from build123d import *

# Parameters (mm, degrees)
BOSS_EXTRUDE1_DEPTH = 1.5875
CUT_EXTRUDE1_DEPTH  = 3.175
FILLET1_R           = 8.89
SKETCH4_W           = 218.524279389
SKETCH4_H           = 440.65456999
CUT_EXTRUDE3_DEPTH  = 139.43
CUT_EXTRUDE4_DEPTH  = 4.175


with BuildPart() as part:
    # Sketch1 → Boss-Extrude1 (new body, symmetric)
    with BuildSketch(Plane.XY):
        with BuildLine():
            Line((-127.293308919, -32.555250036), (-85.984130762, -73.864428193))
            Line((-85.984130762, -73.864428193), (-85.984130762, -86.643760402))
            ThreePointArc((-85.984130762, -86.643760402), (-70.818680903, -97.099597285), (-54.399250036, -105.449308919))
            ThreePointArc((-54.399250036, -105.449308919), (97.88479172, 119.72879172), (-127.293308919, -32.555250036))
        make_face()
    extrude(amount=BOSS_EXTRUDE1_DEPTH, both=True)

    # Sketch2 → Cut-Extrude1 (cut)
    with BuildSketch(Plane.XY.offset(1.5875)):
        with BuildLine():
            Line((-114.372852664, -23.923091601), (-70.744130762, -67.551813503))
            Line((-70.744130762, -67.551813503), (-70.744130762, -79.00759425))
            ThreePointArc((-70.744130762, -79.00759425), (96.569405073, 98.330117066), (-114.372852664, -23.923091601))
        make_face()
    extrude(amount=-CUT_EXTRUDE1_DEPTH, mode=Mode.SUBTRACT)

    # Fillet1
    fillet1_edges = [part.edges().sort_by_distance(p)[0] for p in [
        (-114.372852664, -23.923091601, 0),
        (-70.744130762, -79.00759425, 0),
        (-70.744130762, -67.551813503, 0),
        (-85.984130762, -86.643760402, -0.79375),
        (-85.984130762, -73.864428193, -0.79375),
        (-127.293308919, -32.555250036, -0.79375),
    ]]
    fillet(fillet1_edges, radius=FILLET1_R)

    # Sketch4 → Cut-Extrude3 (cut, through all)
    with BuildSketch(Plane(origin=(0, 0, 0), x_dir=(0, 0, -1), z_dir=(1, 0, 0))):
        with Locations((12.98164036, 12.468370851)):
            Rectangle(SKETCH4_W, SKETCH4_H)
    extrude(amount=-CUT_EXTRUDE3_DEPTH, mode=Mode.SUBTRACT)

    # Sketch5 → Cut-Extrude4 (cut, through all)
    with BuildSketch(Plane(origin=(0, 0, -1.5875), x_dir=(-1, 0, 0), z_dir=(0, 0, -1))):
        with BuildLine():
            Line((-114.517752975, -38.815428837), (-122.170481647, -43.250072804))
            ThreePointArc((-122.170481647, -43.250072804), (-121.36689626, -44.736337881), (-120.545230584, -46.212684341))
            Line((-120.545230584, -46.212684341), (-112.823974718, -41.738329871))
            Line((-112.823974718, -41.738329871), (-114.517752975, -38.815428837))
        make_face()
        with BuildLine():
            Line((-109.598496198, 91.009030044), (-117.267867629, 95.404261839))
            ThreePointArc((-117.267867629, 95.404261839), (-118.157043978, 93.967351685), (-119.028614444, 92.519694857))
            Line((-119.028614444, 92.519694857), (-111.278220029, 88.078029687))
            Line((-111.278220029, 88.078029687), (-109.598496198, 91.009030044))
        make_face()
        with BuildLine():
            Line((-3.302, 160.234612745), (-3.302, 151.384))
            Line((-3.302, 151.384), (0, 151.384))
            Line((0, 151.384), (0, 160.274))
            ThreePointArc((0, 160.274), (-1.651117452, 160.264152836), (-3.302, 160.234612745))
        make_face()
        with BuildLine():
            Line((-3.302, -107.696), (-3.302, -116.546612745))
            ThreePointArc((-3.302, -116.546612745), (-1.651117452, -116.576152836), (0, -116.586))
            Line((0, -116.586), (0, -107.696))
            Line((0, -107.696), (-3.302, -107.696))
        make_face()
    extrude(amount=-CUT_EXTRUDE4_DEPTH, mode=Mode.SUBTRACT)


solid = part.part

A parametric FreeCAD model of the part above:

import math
import FreeCAD as App
import Part
import Sketcher

V = App.Vector
Q = App.Units.Quantity


def edges_at(feature, points):
    """Names of the edges that pass closest to the given points."""
    edges = feature.Shape.Edges
    near = lambda p: min(range(len(edges)), key=lambda i: edges[i].distToShape(Part.Vertex(*p))[0])
    return sorted({f"Edge{near(p) + 1}" for p in points})


def add_polygon(sketch, points):
    """Adds a closed chain of lines whose ends are joined by coincident constraints."""
    first, n = sketch.GeometryCount, len(points)
    for a, b in zip(points, points[1:] + points[:1]):
        sketch.addGeometry(Part.LineSegment(App.Vector(*a, 0), App.Vector(*b, 0)), False)
    for i in range(n):
        sketch.addConstraint(Sketcher.Constraint("Coincident", first + i, 2, first + (i + 1) % n, 1))

doc = App.newDocument("Part")
body = doc.addObject("PartDesign::Body", "Body")

# Sketch on XY plane
sketch1 = doc.addObject("Sketcher::SketchObject", "Sketch")
body.addObject(sketch1)
sketch1.AttachmentSupport = (doc.XY_Plane, [""])
sketch1.MapMode = "FlatFace"
sketch1.addGeometry([
    Part.LineSegment(V(-127, -33, 0), V(-86, -74, 0)),
    Part.LineSegment(V(-86, -74, 0), V(-86, -87, 0)),
    Part.ArcOfCircle(Part.Circle(V(0, 22, 0), V(0, 0, 1), 138), math.radians(-128.4), math.radians(-113.14)),
    Part.ArcOfCircle(Part.Circle(V(0, 22, 0), V(0, 0, 1), 138), math.radians(-113), math.radians(203)),
], False)
sketch1.addConstraint([
    Sketcher.Constraint("Coincident", 0, 2, 1, 1),
    Sketcher.Constraint("Coincident", 1, 2, 2, 1),
    Sketcher.Constraint("Tangent", 2, 2, 3, 1),
    Sketcher.Constraint("Coincident", 3, 2, 0, 1),
    Sketcher.Constraint("Vertical", 1),
    Sketcher.Constraint("Equal", 2, 3),
    Sketcher.Constraint("PointOnObject", 2, 3, -2),
    Sketcher.Constraint("Radius", 2, Q("5.45 in")),
    Sketcher.Constraint("Angle", 0, Q("-45 deg")),
    Sketcher.Constraint("Distance", 0, Q("2.3 in")),
    Sketcher.Constraint("DistanceY", -1, 1, 2, 3, Q("0.86 in")),
    Sketcher.Constraint("DistanceY", 1, 2, 1, 1, Q("12.779332 mm")),
    Sketcher.Constraint("DistanceX", 2, 2, -1, 1, Q("54.39925 mm")),
])
pad1 = doc.addObject("PartDesign::Pad", "Pad")
body.addObject(pad1)
pad1.Profile = sketch1
pad1.Length = Q("0.125 in")
pad1.Midplane = True

# Sketch on XY plane
sketch2 = doc.addObject("Sketcher::SketchObject", "Sketch001")
body.addObject(sketch2)
sketch2.AttachmentSupport = (doc.XY_Plane, [""])
sketch2.MapMode = "FlatFace"
sketch2.AttachmentOffset = App.Placement(V(0, 0, 0.0625 * 25.4), App.Rotation())
sketch2.addGeometry([
    Part.LineSegment(V(-114, -24, 0), V(-71, -68, 0)),
    Part.LineSegment(V(-71, -68, 0), V(-71, -79, 0)),
    Part.ArcOfCircle(Part.Circle(V(0, 22, 0), V(0, 0, 1), 123), math.radians(-125), math.radians(202)),
], False)
sketch2.addConstraint([
    Sketcher.Constraint("Coincident", 0, 2, 1, 1),
    Sketcher.Constraint("Coincident", 1, 2, 2, 1),
    Sketcher.Constraint("Coincident", 2, 2, 0, 1),
    Sketcher.Constraint("Vertical", 1),
    Sketcher.Constraint("PointOnObject", 2, 3, -2),
    Sketcher.Constraint("Radius", 2, Q("4.85 in")),
    Sketcher.Constraint("Angle", 0, Q("-45 deg")),
    Sketcher.Constraint("DistanceY", -1, 1, 2, 3, Q("0.86 in")),
    Sketcher.Constraint("DistanceY", 1, 2, 1, 1, Q("11.455781 mm")),
    Sketcher.Constraint("Distance", 0, Q("61.70033 mm")),
])
pocket1 = doc.addObject("PartDesign::Pocket", "Pocket")
body.addObject(pocket1)
pocket1.Profile = sketch2
pocket1.Length = Q("0.125 in")
doc.recompute()

fillet = doc.addObject("PartDesign::Fillet", "Fillet")
body.addObject(fillet)
fillet.Base = (pocket1, edges_at(pocket1, [
    (-114.373, -23.923, 0),
    (-70.744, -79.008, 0),
    (-70.744, -67.552, 0),
    (-85.984, -86.644, 0),
    (-85.984, -73.864, 0),
    (-127.293, -32.555, 0),
]))
fillet.Radius = Q("0.35 in")

# Sketch on YZ plane
sketch3 = doc.addObject("Sketcher::SketchObject", "Sketch002")
body.addObject(sketch3)
sketch3.AttachmentSupport = (doc.YZ_Plane, [""])
sketch3.MapMode = "FlatFace"
add_polygon(sketch3, [(233, 96), (-208, 96), (-208, -122), (233, -122)])  # lines 0-3
sketch3.addConstraint([
    Sketcher.Constraint("Horizontal", 0),
    Sketcher.Constraint("Vertical", 1),
    Sketcher.Constraint("Horizontal", 2),
    Sketcher.Constraint("Vertical", 3),
    Sketcher.Constraint("DistanceX", 0, 2, 0, 1, Q("440.65457 mm")),
    Sketcher.Constraint("DistanceY", 1, 2, 1, 1, Q("218.524279 mm")),
    Sketcher.Constraint("DistanceY", -1, 1, 0, 2, Q("96.280499 mm")),
    Sketcher.Constraint("DistanceX", 0, 2, -1, 1, Q("207.858914 mm")),
])
pocket2 = doc.addObject("PartDesign::Pocket", "Pocket001")
body.addObject(pocket2)
pocket2.Profile = sketch3
pocket2.Type = "ThroughAll"

# Sketch on XY plane
sketch4 = doc.addObject("Sketcher::SketchObject", "Sketch003")
body.addObject(sketch4)
sketch4.AttachmentSupport = (doc.XY_Plane, [""])
sketch4.MapMode = "FlatFace"
sketch4.AttachmentOffset = App.Placement(V(0, 0, -0.0625 * 25.4), App.Rotation())
sketch4.addGeometry([
    Part.LineSegment(V(114.5, -38.8, 0), V(122.2, -43.3, 0)),  # 0
    Part.ArcOfCircle(Part.Circle(V(0, 21.8, 0), V(0, 0, 1), 138.4), math.radians(-29.45), math.radians(-28.05)),  # 1
    Part.LineSegment(V(120.5, -46.2, 0), V(112.8, -41.7, 0)),  # 2
    Part.LineSegment(V(112.8, -41.7, 0), V(114.5, -38.8, 0)),  # 3
    Part.LineSegment(V(109.6, 91, 0), V(117.3, 95.4, 0)),  # 4
    Part.ArcOfCircle(Part.Circle(V(0, 21.8, 0), V(0, 0, 1), 138.4), math.radians(30.7), math.radians(32.1)),  # 5
    Part.LineSegment(V(119, 92.5, 0), V(111.3, 88.1, 0)),  # 6
    Part.LineSegment(V(111.3, 88.1, 0), V(109.6, 91, 0)),  # 7
    Part.LineSegment(V(3.3, 160.2, 0), V(3.3, 151.4, 0)),  # 8
    Part.LineSegment(V(3.3, 151.4, 0), V(0, 151.4, 0)),  # 9
    Part.LineSegment(V(0, 151.4, 0), V(0, 160.3, 0)),  # 10
    Part.ArcOfCircle(Part.Circle(V(0, 21.8, 0), V(0, 0, 1), 138.4), math.radians(88.63), math.radians(90)),  # 11
    Part.LineSegment(V(3.3, -107.7, 0), V(3.3, -116.5, 0)),  # 12
    Part.ArcOfCircle(Part.Circle(V(0, 21.8, 0), V(0, 0, 1), 138.4), math.radians(-90), math.radians(-88.63)),  # 13
    Part.LineSegment(V(0, -116.6, 0), V(0, -107.7, 0)),  # 14
    Part.LineSegment(V(0, -107.7, 0), V(3.3, -107.7, 0)),  # 15
], False)
sketch4.addConstraint([
    Sketcher.Constraint("Coincident", 0, 2, 1, 2),
    Sketcher.Constraint("Coincident", 1, 1, 2, 1),
    Sketcher.Constraint("Coincident", 2, 2, 3, 1),
    Sketcher.Constraint("Coincident", 3, 2, 0, 1),
    Sketcher.Constraint("Coincident", 4, 2, 5, 2),
    Sketcher.Constraint("Coincident", 5, 1, 6, 1),
    Sketcher.Constraint("Coincident", 6, 2, 7, 1),
    Sketcher.Constraint("Coincident", 7, 2, 4, 1),
    Sketcher.Constraint("Coincident", 8, 2, 9, 1),
    Sketcher.Constraint("Coincident", 9, 2, 10, 1),
    Sketcher.Constraint("Coincident", 10, 2, 11, 2),
    Sketcher.Constraint("Coincident", 11, 1, 8, 1),
    Sketcher.Constraint("Coincident", 12, 2, 13, 2),
    Sketcher.Constraint("Coincident", 13, 1, 14, 1),
    Sketcher.Constraint("Coincident", 14, 2, 15, 1),
    Sketcher.Constraint("Coincident", 15, 2, 12, 1),
    Sketcher.Constraint("Vertical", 8),
    Sketcher.Constraint("Horizontal", 9),
    Sketcher.Constraint("Vertical", 10),
    Sketcher.Constraint("Vertical", 12),
    Sketcher.Constraint("Vertical", 14),
    Sketcher.Constraint("Horizontal", 15),
    Sketcher.Constraint("Coincident", 5, 3, 1, 3),
    Sketcher.Constraint("Coincident", 11, 3, 1, 3),
    Sketcher.Constraint("Coincident", 13, 3, 1, 3),
    Sketcher.Constraint("Equal", 11, 13),
    Sketcher.Constraint("PointOnObject", 11, 3, -2),
    Sketcher.Constraint("PointOnObject", 9, 2, -2),
    Sketcher.Constraint("PointOnObject", 13, 1, -2),
    Sketcher.Constraint("Parallel", 0, 2),
    Sketcher.Constraint("Perpendicular", 2, 3),
    Sketcher.Constraint("Parallel", 4, 6),
    Sketcher.Constraint("Perpendicular", 6, 7),
    Sketcher.Constraint("Vertical", 11, 1, 12, 2),
    Sketcher.Constraint("Equal", 8, 12),
    Sketcher.Constraint("Equal", 3, 7),
    Sketcher.Constraint("Radius", 1, Q("5.4499999 in")),
    Sketcher.Constraint("Radius", 11, Q("5.45 in")),
    Sketcher.Constraint("DistanceX", 9, 2, 9, 1, Q("0.13 in")),
    Sketcher.Constraint("DistanceY", 10, 1, 10, 2, Q("0.35 in")),
    Sketcher.Constraint("DistanceY", -1, 1, 1, 3, Q("0.8599999 in")),
    Sketcher.Constraint("Distance", 3, Q("0.133 in")),
    Sketcher.Constraint("Radius", 5, Q("138.430006 mm")),
    Sketcher.Constraint("DistanceY", 2, 2, 3, 2, Q("2.922901 mm")),
    Sketcher.Constraint("DistanceY", 6, 2, 7, 2, Q("2.931 mm")),
    Sketcher.Constraint("Distance", 0, Q("8.844791 mm")),
    Sketcher.Constraint("Distance", 4, Q("8.839532 mm")),
    Sketcher.Constraint("DistanceX", -1, 1, 0, 2, Q("122.170482 mm")),
    Sketcher.Constraint("DistanceY", -1, 1, 4, 2, Q("95.404262 mm")),
])
pocket3 = doc.addObject("PartDesign::Pocket", "Pocket002")
body.addObject(pocket3)
pocket3.Profile = sketch4
pocket3.Type = "ThroughAll"
pocket3.Reversed = True

doc.recompute()
